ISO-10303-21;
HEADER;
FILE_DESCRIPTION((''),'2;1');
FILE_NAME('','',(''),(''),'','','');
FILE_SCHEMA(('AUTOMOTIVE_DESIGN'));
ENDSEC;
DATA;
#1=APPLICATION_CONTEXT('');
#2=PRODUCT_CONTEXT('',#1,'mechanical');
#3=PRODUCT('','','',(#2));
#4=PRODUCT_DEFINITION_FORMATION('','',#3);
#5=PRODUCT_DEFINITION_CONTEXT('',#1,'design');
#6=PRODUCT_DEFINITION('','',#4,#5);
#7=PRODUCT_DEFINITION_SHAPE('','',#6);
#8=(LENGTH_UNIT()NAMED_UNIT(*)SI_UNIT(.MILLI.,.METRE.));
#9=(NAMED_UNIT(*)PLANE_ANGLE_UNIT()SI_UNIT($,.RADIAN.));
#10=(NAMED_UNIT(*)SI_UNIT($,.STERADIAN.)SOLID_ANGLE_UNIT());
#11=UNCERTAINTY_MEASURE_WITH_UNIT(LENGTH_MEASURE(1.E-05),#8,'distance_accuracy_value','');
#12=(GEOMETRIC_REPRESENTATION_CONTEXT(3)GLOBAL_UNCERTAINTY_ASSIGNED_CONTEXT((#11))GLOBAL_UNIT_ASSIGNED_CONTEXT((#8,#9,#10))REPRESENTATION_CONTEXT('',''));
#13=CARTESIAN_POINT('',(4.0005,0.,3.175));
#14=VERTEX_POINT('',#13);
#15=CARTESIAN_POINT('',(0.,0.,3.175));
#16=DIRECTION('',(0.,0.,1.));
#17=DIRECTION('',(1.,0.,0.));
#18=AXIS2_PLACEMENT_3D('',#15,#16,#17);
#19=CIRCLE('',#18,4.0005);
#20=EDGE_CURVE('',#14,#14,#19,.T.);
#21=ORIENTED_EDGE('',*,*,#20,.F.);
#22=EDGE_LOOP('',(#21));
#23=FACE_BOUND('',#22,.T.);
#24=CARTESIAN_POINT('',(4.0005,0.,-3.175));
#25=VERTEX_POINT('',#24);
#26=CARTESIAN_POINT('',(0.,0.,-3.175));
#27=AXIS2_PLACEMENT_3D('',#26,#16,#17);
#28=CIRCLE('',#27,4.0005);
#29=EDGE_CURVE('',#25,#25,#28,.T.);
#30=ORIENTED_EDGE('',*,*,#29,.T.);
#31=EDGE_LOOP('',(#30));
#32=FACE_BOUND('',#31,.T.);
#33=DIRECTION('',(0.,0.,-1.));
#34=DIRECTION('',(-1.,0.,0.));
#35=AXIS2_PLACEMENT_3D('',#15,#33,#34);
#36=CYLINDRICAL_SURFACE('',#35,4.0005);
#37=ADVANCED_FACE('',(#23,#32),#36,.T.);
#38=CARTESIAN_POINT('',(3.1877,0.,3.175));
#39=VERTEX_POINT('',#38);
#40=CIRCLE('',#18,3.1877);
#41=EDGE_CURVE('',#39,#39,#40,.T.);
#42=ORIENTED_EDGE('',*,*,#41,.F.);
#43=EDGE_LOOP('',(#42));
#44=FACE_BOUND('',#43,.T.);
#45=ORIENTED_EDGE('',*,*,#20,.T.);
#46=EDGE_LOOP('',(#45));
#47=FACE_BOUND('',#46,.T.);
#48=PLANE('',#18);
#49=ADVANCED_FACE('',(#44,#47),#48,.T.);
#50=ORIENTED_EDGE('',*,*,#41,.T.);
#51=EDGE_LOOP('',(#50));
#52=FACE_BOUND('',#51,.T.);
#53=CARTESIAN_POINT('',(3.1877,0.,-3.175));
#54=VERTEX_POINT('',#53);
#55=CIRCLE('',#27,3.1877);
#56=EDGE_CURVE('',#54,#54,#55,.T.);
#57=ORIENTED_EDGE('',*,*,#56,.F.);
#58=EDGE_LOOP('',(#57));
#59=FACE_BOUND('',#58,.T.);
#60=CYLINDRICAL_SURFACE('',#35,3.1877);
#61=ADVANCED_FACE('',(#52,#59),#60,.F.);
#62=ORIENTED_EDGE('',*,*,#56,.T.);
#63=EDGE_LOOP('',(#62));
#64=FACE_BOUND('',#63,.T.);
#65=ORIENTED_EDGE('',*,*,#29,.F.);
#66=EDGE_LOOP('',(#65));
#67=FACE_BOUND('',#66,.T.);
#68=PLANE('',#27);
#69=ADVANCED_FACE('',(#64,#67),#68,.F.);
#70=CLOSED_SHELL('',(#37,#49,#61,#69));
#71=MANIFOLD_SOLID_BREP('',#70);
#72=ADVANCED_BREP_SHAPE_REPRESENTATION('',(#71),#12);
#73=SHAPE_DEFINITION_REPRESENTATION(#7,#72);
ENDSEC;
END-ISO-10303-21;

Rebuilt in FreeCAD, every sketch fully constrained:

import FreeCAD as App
import Part
import Sketcher
from FreeCAD import Vector
Q = App.Units.Quantity

doc = App.newDocument("Part")
body = doc.addObject("PartDesign::Body", "Body")

# Sketch on XY plane
sketch1 = body.newObject("Sketcher::SketchObject", "Sketch")
sketch1.AttachmentSupport = (doc.getObject("XY_Plane"), [""])
sketch1.MapMode = "FlatFace"
sketch1.addGeometry(Part.Circle(Vector(0, 0, 0), Vector(0, 0, 1), 4), False)
sketch1.addGeometry(Part.Circle(Vector(0, 0, 0), Vector(0, 0, 1), 3.2), False)
sketch1.addConstraint(Sketcher.Constraint("Coincident", 0, 3, -1, 1))
sketch1.addConstraint(Sketcher.Constraint("Coincident", 1, 3, -1, 1))
sketch1.addConstraint(Sketcher.Constraint("Diameter", 0, Q("0.315 in")))
sketch1.addConstraint(Sketcher.Constraint("Diameter", 1, Q("0.251 in")))
pad1 = body.newObject("PartDesign::Pad", "Pad")
pad1.Profile = sketch1
pad1.Length = Q("0.25 in")
pad1.Midplane = True

doc.recompute()
